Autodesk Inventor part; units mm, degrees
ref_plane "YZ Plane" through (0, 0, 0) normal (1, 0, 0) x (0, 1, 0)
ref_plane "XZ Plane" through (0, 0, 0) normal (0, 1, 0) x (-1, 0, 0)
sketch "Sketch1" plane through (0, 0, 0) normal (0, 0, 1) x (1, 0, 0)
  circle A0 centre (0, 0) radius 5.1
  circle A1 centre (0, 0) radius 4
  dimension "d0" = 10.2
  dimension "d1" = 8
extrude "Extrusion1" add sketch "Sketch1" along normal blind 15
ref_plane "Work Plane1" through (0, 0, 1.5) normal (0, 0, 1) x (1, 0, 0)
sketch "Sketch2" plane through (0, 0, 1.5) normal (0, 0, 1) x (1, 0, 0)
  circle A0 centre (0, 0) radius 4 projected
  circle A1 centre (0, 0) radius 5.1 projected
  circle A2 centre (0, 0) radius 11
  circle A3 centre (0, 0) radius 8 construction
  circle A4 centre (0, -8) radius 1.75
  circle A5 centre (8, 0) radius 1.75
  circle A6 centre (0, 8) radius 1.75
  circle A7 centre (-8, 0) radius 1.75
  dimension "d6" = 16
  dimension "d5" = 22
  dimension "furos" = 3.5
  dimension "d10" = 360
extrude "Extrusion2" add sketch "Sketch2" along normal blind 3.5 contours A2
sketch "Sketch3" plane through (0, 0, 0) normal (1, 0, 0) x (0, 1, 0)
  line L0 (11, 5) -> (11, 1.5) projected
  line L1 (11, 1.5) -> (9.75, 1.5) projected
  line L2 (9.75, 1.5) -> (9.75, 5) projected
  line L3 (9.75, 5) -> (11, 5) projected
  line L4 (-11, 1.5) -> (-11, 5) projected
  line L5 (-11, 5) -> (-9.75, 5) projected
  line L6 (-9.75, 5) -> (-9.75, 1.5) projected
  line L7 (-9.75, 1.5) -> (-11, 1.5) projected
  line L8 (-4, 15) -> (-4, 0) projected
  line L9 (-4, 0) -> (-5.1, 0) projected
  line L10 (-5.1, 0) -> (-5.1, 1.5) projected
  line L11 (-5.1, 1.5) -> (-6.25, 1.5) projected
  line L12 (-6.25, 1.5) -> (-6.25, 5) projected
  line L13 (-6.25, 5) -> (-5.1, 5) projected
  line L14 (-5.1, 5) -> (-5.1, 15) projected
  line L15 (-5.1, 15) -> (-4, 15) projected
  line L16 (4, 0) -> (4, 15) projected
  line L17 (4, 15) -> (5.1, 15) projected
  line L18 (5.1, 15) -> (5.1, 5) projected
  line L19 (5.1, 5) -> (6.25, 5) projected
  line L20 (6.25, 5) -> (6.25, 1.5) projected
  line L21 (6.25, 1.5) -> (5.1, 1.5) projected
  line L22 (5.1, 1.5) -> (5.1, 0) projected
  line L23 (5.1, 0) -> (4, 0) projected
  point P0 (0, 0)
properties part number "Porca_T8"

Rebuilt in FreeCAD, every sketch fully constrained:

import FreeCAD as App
import Part
import Sketcher
from FreeCAD import Vector

doc = App.newDocument("Part")
params = doc.addObject("Spreadsheet::Sheet", "Params")
for row, (alias, value) in enumerate([
    ("sketch1_diameter", "8 mm"),
    ("sketch1_diameter2", "10.2 mm"),
    ("pad1_length", "15 mm"),
    ("sketch2_diameter", "22 mm"),
    ("sketch2_diameter2", "3.5 mm"),
    ("sketch2_diameter3", "10.2 mm"),
    ("pad2_length", "3.5 mm"),
], start=1):
    params.set(f"A{row}", alias)
    params.set(f"B{row}", "=" + value)
    params.setAlias(f"B{row}", alias)

body = doc.addObject("PartDesign::Body", "Body")

# Sketch on XY plane
sketch1 = body.newObject("Sketcher::SketchObject", "Sketch")
sketch1.AttachmentSupport = (doc.getObject("XY_Plane"), [""])
sketch1.MapMode = "FlatFace"
sketch1.addGeometry([
    Part.Circle(Vector(0, 0, 0), Vector(0, 0, 1), 5.1),
    Part.Circle(Vector(0, 0, 0), Vector(0, 0, 1), 4),
], False)
sketch1.addConstraint([
    Sketcher.Constraint("Coincident", 0, 3, -1, 1),
    Sketcher.Constraint("Coincident", 1, 3, -1, 1),
    Sketcher.Constraint("Diameter", 1, 8.0),
    Sketcher.Constraint("Diameter", 0, 10.2),
])
sketch1.setExpression("Constraints[2]", "Params.sketch1_diameter")
sketch1.setExpression("Constraints[3]", "Params.sketch1_diameter2")
pad1 = body.newObject("PartDesign::Pad", "Pad")
pad1.Profile = sketch1
pad1.setExpression("Length", "Params.pad1_length")

# Sketch on XY plane
sketch2 = body.newObject("Sketcher::SketchObject", "Sketch001")
sketch2.AttachmentSupport = (doc.getObject("XY_Plane"), [""])
sketch2.MapMode = "FlatFace"
sketch2.AttachmentOffset = App.Placement(Vector(0, 0, 1.5), App.Rotation())
sketch2.addGeometry([
    Part.Circle(Vector(0, 0, 0), Vector(0, 0, 1), 11),  # 0
    Part.Circle(Vector(0, -8, 0), Vector(0, 0, 1), 1.75),  # 1
    Part.Circle(Vector(-8, 0, 0), Vector(0, 0, 1), 1.75),  # 2
    Part.Circle(Vector(0, 0, 0), Vector(0, 0, 1), 5.1),  # 3
    Part.Circle(Vector(8, 0, 0), Vector(0, 0, 1), 1.75),  # 4
    Part.Circle(Vector(0, 8, 0), Vector(0, 0, 1), 1.75),  # 5
], False)
sketch2.addConstraint([
    Sketcher.Constraint("Coincident", 0, 3, -1, 1),
    Sketcher.Constraint("Coincident", 3, 3, -1, 1),
    Sketcher.Constraint("Equal", 1, 2),
    Sketcher.Constraint("Equal", 2, 4),
    Sketcher.Constraint("Equal", 4, 5),
    Sketcher.Constraint("Symmetric", 2, 3, 4, 3, -1, 1),
    Sketcher.Constraint("Symmetric", 1, 3, 5, 3, -1, 1),
    Sketcher.Constraint("PointOnObject", 1, 3, -2),
    Sketcher.Constraint("PointOnObject", 2, 3, -1),
    Sketcher.Constraint("Diameter", 0, 22.0),
    Sketcher.Constraint("Diameter", 1, 3.5),
    Sketcher.Constraint("DistanceX", 2, 3, 4, 3, 16.0),
    Sketcher.Constraint("DistanceY", 1, 3, 5, 3, 16.0),
    Sketcher.Constraint("Diameter", 3, 10.2),
])
sketch2.setExpression("Constraints[9]", "Params.sketch2_diameter")
sketch2.setExpression("Constraints[10]", "Params.sketch2_diameter2")
sketch2.setExpression("Constraints[13]", "Params.sketch2_diameter3")
pad2 = body.newObject("PartDesign::Pad", "Pad001")
pad2.Profile = sketch2
pad2.setExpression("Length", "Params.pad2_length")

doc.recompute()
